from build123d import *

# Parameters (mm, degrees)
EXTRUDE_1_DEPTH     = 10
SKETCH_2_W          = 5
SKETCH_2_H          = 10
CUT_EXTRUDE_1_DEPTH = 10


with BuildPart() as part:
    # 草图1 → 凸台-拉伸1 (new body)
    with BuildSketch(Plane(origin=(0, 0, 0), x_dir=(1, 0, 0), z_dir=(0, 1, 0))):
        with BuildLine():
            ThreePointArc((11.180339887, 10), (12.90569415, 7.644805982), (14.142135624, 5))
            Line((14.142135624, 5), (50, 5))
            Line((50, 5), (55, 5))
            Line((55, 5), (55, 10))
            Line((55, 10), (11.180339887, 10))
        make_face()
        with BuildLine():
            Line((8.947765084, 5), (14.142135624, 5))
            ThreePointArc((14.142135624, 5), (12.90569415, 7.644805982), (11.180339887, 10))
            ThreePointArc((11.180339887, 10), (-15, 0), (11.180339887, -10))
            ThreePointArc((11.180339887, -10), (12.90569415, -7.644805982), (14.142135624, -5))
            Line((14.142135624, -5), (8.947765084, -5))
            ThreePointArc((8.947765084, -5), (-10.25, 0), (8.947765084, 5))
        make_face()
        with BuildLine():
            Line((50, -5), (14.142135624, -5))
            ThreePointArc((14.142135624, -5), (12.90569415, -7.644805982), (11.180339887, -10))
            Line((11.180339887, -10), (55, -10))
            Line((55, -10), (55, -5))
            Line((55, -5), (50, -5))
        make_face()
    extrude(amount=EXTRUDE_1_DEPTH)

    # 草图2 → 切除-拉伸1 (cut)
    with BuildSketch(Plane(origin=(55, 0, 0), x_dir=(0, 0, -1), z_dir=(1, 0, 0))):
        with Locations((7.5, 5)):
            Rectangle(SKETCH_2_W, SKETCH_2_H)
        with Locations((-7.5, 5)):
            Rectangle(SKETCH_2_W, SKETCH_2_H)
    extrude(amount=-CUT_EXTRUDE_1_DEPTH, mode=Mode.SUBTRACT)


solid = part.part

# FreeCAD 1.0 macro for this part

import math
import FreeCAD as App
import Part
import Sketcher
Q = App.Units.Quantity


def add_polygon(sketch, points):
    """Adds a closed chain of lines whose ends are joined by coincident constraints."""
    first, n = sketch.GeometryCount, len(points)
    for a, b in zip(points, points[1:] + points[:1]):
        sketch.addGeometry(Part.LineSegment(App.Vector(*a, 0), App.Vector(*b, 0)), False)
    for i in range(n):
        sketch.addConstraint(Sketcher.Constraint("Coincident", first + i, 2, first + (i + 1) % n, 1))

doc = App.newDocument("Part")
body = doc.addObject("PartDesign::Body", "Body")

# Sketch on XZ plane
sketch1 = doc.addObject("Sketcher::SketchObject", "Sketch")
body.addObject(sketch1)
sketch1.AttachmentSupport = (doc.XZ_Plane, [""])
sketch1.MapMode = "FlatFace"
sketch1.addGeometry(Part.LineSegment(App.Vector(55, -5, 0), App.Vector(55, -10, 0)), False)
sketch1.addGeometry(Part.LineSegment(App.Vector(55, -10, 0), App.Vector(11, -10, 0)), False)
sketch1.addGeometry(Part.ArcOfCircle(Part.Circle(App.Vector(0, 0, 0), App.Vector(0, 0, 1), 15), math.radians(42), math.radians(318)), False)
sketch1.addGeometry(Part.LineSegment(App.Vector(11, 10, 0), App.Vector(55, 10, 0)), False)
sketch1.addGeometry(Part.LineSegment(App.Vector(55, 10, 0), App.Vector(55, 5, 0)), False)
sketch1.addGeometry(Part.LineSegment(App.Vector(55, 5, 0), App.Vector(9, 5, 0)), False)
sketch1.addGeometry(Part.ArcOfCircle(Part.Circle(App.Vector(0, 0, 0), App.Vector(0, 0, 1), 10), math.radians(29), math.radians(331)), False)
sketch1.addGeometry(Part.LineSegment(App.Vector(9, -5, 0), App.Vector(55, -5, 0)), False)
sketch1.addConstraint(Sketcher.Constraint("Coincident", 0, 2, 1, 1))
sketch1.addConstraint(Sketcher.Constraint("Coincident", 1, 2, 2, 2))
sketch1.addConstraint(Sketcher.Constraint("Coincident", 2, 1, 3, 1))
sketch1.addConstraint(Sketcher.Constraint("Coincident", 3, 2, 4, 1))
sketch1.addConstraint(Sketcher.Constraint("Coincident", 4, 2, 5, 1))
sketch1.addConstraint(Sketcher.Constraint("Coincident", 5, 2, 6, 1))
sketch1.addConstraint(Sketcher.Constraint("Coincident", 6, 2, 7, 1))
sketch1.addConstraint(Sketcher.Constraint("Coincident", 7, 2, 0, 1))
sketch1.addConstraint(Sketcher.Constraint("Vertical", 0))
sketch1.addConstraint(Sketcher.Constraint("Horizontal", 1))
sketch1.addConstraint(Sketcher.Constraint("Horizontal", 3))
sketch1.addConstraint(Sketcher.Constraint("Vertical", 4))
sketch1.addConstraint(Sketcher.Constraint("Horizontal", 5))
sketch1.addConstraint(Sketcher.Constraint("Horizontal", 7))
sketch1.addConstraint(Sketcher.Constraint("Coincident", 2, 3, -1, 1))
sketch1.addConstraint(Sketcher.Constraint("Coincident", 6, 3, -1, 1))
sketch1.addConstraint(Sketcher.Constraint("Symmetric", 0, 2, 3, 2, -1))
sketch1.addConstraint(Sketcher.Constraint("Vertical", 5, 2, 6, 2))
sketch1.addConstraint(Sketcher.Constraint("Radius", 2, Q("15 mm")))
sketch1.addConstraint(Sketcher.Constraint("DistanceY", 0, 2, 0, 1, Q("5 mm")))
sketch1.addConstraint(Sketcher.Constraint("Radius", 6, Q("10.25 mm")))
sketch1.addConstraint(Sketcher.Constraint("DistanceX", -1, 1, 0, 2, Q("55 mm")))
sketch1.addConstraint(Sketcher.Constraint("DistanceY", 0, 2, -1, 1, Q("10 mm")))
pad1 = doc.addObject("PartDesign::Pad", "Pad")
body.addObject(pad1)
pad1.Profile = sketch1
pad1.Length = 10
pad1.Reversed = True

# Sketch on YZ plane
sketch2 = doc.addObject("Sketcher::SketchObject", "Sketch001")
body.addObject(sketch2)
sketch2.AttachmentSupport = (doc.YZ_Plane, [""])
sketch2.MapMode = "FlatFace"
sketch2.AttachmentOffset = App.Placement(App.Vector(0, 0, 55), App.Rotation())
add_polygon(sketch2, [(10, -5), (0, -5), (0, -10), (10, -10)])  # lines 0-3
add_polygon(sketch2, [(10, 10), (0, 10), (0, 5), (10, 5)])  # lines 4-7
sketch2.addConstraint(Sketcher.Constraint("Horizontal", 0))
sketch2.addConstraint(Sketcher.Constraint("Vertical", 1))
sketch2.addConstraint(Sketcher.Constraint("Horizontal", 2))
sketch2.addConstraint(Sketcher.Constraint("Vertical", 3))
sketch2.addConstraint(Sketcher.Constraint("Horizontal", 4))
sketch2.addConstraint(Sketcher.Constraint("Vertical", 5))
sketch2.addConstraint(Sketcher.Constraint("Horizontal", 6))
sketch2.addConstraint(Sketcher.Constraint("Vertical", 7))
sketch2.addConstraint(Sketcher.Constraint("Symmetric", 1, 2, 4, 2, -1, 1))
sketch2.addConstraint(Sketcher.Constraint("Symmetric", 0, 2, 5, 2, -1))
sketch2.addConstraint(Sketcher.Constraint("Vertical", 3, 2, 6, 2))
sketch2.addConstraint(Sketcher.Constraint("DistanceX", 0, 2, 0, 1, Q("10 mm")))
sketch2.addConstraint(Sketcher.Constraint("DistanceY", 1, 2, 1, 1, Q("5 mm")))
sketch2.addConstraint(Sketcher.Constraint("DistanceY", 0, 2, -1, 1, Q("5 mm")))
pocket1 = doc.addObject("PartDesign::Pocket", "Pocket")
body.addObject(pocket1)
pocket1.Profile = sketch2
pocket1.Length = 10

doc.recompute()
